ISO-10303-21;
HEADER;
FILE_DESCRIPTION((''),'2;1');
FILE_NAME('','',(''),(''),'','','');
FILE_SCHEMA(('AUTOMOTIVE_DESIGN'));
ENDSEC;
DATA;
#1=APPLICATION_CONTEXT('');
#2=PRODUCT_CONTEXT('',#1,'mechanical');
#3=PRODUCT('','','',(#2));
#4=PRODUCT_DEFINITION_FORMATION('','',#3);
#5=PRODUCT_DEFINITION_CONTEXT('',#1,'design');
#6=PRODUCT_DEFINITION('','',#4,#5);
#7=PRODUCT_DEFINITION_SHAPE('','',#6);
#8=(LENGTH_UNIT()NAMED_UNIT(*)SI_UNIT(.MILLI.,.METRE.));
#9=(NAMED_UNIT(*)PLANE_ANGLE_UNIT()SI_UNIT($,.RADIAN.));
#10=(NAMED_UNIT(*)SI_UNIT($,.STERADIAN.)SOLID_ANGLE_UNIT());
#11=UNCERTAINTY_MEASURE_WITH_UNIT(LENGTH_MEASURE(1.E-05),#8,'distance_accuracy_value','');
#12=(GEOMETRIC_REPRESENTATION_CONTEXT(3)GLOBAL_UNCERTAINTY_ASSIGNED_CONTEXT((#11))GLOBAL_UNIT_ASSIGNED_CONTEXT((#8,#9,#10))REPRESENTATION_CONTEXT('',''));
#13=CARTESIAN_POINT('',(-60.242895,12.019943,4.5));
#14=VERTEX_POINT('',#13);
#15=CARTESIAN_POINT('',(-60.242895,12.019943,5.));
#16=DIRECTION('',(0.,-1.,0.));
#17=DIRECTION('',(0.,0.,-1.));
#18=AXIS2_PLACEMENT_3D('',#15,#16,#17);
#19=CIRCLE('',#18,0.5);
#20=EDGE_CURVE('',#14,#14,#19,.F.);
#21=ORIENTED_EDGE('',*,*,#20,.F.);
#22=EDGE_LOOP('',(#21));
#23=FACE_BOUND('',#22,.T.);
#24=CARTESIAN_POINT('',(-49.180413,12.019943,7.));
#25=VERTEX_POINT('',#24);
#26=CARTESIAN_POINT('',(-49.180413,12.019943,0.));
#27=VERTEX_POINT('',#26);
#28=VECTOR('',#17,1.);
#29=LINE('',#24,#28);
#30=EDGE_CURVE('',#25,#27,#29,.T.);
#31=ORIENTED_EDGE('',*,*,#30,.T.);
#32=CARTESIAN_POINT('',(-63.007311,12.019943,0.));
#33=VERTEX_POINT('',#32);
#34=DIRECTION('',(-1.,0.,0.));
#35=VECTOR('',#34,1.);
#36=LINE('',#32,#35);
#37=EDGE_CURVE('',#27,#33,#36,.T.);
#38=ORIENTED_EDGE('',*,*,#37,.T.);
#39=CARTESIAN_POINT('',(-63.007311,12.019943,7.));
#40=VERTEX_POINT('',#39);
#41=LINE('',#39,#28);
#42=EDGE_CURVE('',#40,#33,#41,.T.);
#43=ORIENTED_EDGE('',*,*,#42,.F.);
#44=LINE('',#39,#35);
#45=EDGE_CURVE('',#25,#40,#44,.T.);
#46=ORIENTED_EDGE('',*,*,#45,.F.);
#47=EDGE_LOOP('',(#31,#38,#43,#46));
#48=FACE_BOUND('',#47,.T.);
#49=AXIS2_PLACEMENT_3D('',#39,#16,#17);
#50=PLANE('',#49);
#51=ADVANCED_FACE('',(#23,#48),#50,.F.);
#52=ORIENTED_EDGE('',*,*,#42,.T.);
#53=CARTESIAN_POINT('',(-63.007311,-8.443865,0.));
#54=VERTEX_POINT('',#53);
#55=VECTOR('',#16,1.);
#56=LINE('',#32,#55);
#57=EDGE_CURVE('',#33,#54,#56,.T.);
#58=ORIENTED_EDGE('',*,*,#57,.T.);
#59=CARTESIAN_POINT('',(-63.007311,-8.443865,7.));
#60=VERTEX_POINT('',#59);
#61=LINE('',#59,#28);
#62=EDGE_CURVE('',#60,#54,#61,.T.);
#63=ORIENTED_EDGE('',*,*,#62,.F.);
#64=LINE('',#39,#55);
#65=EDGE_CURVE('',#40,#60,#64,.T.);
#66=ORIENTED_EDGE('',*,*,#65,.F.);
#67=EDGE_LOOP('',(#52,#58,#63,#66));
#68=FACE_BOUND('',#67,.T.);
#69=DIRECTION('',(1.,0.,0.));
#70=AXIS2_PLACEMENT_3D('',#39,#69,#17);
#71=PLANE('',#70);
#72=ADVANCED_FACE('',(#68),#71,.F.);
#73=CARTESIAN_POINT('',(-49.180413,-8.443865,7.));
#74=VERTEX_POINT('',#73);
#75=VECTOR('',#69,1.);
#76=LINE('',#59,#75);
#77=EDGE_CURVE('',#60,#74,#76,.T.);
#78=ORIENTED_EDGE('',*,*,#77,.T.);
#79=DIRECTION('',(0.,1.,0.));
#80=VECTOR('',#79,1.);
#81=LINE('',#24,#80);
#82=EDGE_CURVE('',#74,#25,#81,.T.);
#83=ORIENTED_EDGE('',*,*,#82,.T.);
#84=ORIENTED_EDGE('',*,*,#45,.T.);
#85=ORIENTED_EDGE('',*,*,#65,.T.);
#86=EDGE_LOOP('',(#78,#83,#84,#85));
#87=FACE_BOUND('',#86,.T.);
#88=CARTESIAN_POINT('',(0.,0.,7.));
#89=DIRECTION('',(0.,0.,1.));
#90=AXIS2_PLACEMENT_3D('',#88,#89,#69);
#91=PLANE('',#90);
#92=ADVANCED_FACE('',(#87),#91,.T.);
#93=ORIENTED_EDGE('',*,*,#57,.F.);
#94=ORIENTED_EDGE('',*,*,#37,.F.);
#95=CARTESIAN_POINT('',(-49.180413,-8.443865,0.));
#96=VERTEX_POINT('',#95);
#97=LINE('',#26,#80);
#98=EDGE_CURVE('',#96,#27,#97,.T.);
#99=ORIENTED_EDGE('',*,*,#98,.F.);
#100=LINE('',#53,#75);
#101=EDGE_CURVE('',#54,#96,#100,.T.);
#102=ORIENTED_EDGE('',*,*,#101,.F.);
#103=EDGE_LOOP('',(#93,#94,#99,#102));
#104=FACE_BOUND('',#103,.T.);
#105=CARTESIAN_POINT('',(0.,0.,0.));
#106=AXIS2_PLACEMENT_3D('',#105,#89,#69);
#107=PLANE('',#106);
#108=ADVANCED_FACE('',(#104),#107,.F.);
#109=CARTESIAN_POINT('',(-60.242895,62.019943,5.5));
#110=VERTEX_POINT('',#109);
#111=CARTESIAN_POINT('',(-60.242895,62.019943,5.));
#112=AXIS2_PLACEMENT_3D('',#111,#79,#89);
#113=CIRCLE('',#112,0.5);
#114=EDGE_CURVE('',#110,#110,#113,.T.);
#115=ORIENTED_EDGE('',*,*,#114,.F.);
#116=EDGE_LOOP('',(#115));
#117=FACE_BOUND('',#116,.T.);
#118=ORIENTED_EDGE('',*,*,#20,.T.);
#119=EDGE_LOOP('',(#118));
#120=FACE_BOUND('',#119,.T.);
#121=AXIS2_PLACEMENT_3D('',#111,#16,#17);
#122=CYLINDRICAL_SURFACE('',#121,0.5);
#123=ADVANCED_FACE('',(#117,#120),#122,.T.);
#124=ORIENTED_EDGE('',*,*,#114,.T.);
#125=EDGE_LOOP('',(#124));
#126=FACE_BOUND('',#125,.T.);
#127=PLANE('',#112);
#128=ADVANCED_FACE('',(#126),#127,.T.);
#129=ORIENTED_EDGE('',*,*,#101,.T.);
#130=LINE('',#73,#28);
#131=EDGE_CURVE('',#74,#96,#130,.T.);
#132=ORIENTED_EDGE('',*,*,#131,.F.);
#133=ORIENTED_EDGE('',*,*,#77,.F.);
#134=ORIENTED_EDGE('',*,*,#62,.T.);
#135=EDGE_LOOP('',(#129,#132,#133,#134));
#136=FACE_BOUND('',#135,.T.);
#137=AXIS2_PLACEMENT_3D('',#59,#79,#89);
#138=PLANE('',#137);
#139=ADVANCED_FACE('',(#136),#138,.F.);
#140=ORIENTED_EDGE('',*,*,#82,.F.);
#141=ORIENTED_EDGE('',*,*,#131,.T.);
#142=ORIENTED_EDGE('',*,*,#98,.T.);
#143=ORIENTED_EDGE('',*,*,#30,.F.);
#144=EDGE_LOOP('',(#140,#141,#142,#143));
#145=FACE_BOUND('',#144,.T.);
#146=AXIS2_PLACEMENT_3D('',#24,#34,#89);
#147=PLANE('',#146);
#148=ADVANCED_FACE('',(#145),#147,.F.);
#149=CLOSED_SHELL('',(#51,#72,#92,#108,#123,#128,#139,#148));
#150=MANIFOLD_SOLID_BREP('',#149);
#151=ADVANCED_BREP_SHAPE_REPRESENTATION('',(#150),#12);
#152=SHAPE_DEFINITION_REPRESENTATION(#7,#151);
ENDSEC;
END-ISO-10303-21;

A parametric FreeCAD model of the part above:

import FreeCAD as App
import Part
import Sketcher
from FreeCAD import Vector
Q = App.Units.Quantity

doc = App.newDocument("Part")
body = doc.addObject("PartDesign::Body", "Body")

# Sketch on XY plane
sketch1 = body.newObject("Sketcher::SketchObject", "Sketch")
sketch1.AttachmentSupport = (doc.getObject("XY_Plane"), [""])
sketch1.MapMode = "FlatFace"
sketch1.addGeometry([
    Part.LineSegment(Vector(-63, 12, 0), Vector(-63, -8, 0)),
    Part.LineSegment(Vector(-63, -8, 0), Vector(-49, -8, 0)),
    Part.LineSegment(Vector(-49, -8, 0), Vector(-49, 12, 0)),
    Part.LineSegment(Vector(-49, 12, 0), Vector(-63, 12, 0)),
], False)
sketch1.addConstraint([
    Sketcher.Constraint("Coincident", 0, 2, 1, 1),
    Sketcher.Constraint("Coincident", 1, 2, 2, 1),
    Sketcher.Constraint("Coincident", 2, 2, 3, 1),
    Sketcher.Constraint("Coincident", 3, 2, 0, 1),
    Sketcher.Constraint("Vertical", 0),
    Sketcher.Constraint("Horizontal", 1),
    Sketcher.Constraint("Vertical", 2),
    Sketcher.Constraint("Horizontal", 3),
    Sketcher.Constraint("DistanceY", 0, 2, 0, 1, Q("20.463808 mm")),
    Sketcher.Constraint("DistanceX", 1, 1, 1, 2, Q("13.826897 mm")),
    Sketcher.Constraint("DistanceX", 0, 2, -1, 1, Q("63.007311 mm")),
    Sketcher.Constraint("DistanceY", 0, 2, -1, 1, Q("8.443865 mm")),
])
pad1 = body.newObject("PartDesign::Pad", "Pad")
pad1.Profile = sketch1
pad1.Length = 7

# Sketch on XZ plane
sketch2 = body.newObject("Sketcher::SketchObject", "Sketch001")
sketch2.AttachmentSupport = (doc.getObject("XZ_Plane"), [""])
sketch2.MapMode = "FlatFace"
sketch2.AttachmentOffset = App.Placement(Vector(0, 0, -12.019943), App.Rotation())
sketch2.addGeometry(Part.Circle(Vector(-60.2, 5, 0), Vector(0, 0, 1), 0.5), False)
sketch2.addConstraint([
    Sketcher.Constraint("Diameter", 0, Q("1 mm")),
    Sketcher.Constraint("DistanceY", -1, 1, 0, 3, Q("5 mm")),
    Sketcher.Constraint("DistanceX", 0, 3, -1, 1, Q("60.242895 mm")),
])
pad2 = body.newObject("PartDesign::Pad", "Pad001")
pad2.Profile = sketch2
pad2.Length = 50
pad2.Reversed = True

doc.recompute()
